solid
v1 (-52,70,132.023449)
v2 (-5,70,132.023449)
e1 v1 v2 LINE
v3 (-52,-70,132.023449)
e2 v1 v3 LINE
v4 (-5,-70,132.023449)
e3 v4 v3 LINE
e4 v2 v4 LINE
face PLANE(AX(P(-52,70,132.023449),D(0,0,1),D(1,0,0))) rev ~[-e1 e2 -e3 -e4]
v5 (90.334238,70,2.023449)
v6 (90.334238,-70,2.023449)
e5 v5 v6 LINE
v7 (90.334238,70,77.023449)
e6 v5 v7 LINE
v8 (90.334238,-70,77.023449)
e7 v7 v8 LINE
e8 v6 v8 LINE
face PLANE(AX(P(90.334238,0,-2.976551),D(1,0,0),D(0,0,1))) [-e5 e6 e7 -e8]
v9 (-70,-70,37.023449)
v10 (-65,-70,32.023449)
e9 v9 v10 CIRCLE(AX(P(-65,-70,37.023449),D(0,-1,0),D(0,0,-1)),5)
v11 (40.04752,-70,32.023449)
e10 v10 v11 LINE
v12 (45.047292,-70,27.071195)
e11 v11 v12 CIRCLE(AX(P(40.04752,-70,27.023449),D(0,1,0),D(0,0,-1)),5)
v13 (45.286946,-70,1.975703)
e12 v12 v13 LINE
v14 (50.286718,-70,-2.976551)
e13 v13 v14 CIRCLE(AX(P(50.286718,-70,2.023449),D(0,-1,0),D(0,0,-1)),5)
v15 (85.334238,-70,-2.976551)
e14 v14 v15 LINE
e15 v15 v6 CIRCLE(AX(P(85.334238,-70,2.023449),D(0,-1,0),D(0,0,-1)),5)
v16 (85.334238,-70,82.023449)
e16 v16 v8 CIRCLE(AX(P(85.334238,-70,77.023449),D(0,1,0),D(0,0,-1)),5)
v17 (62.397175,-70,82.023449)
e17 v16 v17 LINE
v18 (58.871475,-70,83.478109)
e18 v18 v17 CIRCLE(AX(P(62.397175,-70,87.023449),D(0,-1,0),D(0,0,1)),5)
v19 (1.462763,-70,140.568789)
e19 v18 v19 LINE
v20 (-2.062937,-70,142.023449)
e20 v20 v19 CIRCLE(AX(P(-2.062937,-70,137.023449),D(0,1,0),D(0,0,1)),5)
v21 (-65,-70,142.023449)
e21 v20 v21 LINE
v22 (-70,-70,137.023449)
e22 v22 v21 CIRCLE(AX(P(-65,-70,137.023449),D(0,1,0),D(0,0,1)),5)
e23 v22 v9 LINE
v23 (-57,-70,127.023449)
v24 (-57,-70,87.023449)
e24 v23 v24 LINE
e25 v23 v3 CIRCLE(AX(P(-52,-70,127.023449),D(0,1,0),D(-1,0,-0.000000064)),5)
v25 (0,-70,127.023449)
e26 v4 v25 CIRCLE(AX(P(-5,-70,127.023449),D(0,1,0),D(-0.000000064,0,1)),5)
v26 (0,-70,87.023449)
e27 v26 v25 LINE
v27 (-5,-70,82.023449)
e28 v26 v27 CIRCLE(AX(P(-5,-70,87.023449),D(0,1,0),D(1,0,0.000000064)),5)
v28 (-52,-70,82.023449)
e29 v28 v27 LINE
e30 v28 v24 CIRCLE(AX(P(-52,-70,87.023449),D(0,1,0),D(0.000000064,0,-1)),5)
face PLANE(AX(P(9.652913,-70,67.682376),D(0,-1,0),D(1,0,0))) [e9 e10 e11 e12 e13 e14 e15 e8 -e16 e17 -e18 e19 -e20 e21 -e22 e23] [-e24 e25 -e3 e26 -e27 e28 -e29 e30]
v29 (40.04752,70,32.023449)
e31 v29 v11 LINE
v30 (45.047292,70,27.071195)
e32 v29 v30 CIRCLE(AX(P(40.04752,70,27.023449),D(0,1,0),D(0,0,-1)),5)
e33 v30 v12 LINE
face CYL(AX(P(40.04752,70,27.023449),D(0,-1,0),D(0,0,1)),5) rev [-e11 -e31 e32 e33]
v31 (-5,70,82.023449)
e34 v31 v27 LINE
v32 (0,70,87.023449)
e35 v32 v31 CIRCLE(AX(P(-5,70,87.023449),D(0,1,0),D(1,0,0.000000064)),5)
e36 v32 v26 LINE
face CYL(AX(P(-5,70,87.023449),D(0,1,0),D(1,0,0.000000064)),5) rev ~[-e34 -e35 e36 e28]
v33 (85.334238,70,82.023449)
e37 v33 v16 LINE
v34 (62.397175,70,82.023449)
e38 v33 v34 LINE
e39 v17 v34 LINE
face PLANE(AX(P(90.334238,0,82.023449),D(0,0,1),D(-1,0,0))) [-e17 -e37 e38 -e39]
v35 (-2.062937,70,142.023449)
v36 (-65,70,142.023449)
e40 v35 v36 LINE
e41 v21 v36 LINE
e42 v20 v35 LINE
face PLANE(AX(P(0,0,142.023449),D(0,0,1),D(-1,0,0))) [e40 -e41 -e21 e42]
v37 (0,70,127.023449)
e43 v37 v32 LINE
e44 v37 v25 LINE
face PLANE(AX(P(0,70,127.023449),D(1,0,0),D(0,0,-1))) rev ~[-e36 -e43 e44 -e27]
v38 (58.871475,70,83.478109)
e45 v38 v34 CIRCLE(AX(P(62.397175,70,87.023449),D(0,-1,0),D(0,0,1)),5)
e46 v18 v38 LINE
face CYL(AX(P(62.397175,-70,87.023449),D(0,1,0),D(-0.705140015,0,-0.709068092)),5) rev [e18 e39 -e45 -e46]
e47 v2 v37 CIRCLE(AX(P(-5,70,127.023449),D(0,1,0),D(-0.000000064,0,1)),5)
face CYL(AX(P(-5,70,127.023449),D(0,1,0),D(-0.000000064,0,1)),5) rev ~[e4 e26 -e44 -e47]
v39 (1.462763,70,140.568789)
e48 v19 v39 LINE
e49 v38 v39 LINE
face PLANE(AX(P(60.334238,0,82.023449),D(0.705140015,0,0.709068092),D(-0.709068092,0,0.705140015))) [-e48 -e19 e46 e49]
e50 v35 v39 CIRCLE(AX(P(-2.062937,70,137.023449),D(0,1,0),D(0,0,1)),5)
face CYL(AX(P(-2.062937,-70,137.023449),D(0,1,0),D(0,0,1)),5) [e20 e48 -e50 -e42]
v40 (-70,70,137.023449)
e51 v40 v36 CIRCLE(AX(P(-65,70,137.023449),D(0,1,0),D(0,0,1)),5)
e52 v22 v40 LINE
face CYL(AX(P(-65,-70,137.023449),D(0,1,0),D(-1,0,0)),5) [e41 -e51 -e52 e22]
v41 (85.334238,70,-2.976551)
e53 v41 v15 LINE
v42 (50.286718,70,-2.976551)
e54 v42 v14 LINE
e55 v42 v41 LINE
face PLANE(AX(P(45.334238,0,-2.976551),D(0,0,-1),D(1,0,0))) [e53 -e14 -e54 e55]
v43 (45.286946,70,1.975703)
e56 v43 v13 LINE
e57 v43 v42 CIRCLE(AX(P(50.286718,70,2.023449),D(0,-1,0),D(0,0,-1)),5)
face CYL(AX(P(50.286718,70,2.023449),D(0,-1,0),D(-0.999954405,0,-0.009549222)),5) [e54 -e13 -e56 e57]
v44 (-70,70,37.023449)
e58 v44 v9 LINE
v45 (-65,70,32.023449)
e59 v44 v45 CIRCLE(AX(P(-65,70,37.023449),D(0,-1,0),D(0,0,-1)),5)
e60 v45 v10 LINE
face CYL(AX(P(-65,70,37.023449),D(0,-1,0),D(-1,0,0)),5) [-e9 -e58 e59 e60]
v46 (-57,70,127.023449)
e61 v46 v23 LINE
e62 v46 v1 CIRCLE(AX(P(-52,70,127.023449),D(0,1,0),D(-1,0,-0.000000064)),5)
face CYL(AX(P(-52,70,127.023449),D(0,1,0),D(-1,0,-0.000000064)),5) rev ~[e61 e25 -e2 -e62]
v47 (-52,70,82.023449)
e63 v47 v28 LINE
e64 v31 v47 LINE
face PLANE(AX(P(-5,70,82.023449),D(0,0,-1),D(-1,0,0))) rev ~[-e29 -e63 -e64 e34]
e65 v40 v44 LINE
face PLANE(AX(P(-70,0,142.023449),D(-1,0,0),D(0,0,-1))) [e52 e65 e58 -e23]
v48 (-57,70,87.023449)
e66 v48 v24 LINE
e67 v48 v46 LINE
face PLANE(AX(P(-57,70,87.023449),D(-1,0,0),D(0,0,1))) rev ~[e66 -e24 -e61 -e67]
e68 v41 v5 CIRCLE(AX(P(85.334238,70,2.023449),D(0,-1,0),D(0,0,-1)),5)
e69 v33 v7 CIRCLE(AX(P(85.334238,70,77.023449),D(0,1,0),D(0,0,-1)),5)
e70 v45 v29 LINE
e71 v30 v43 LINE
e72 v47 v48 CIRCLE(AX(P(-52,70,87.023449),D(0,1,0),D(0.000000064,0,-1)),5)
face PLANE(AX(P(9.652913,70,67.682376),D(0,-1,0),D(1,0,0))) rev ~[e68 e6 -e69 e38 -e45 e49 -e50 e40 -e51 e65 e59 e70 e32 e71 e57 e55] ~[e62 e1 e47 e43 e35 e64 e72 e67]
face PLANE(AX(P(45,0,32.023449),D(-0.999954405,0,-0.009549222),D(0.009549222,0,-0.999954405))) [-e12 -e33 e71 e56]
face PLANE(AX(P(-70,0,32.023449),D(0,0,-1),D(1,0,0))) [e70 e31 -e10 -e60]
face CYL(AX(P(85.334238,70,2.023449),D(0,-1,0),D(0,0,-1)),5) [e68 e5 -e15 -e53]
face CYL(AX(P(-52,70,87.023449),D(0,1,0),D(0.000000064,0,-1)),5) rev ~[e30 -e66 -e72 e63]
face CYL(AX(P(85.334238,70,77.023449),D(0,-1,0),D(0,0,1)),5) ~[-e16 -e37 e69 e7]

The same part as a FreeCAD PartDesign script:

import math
import FreeCAD as App
import Part
import Sketcher


def edges_at(feature, points):
    """Names of the edges that pass closest to the given points."""
    edges = feature.Shape.Edges
    near = lambda p: min(range(len(edges)), key=lambda i: edges[i].distToShape(Part.Vertex(*p))[0])
    return sorted({f"Edge{near(p) + 1}" for p in points})


def add_polygon(sketch, points):
    """Adds a closed chain of lines whose ends are joined by coincident constraints."""
    first, n = sketch.GeometryCount, len(points)
    for a, b in zip(points, points[1:] + points[:1]):
        sketch.addGeometry(Part.LineSegment(App.Vector(*a, 0), App.Vector(*b, 0)), False)
    for i in range(n):
        sketch.addConstraint(Sketcher.Constraint("Coincident", first + i, 2, first + (i + 1) % n, 1))

doc = App.newDocument("Part")
params = doc.addObject("Spreadsheet::Sheet", "Params")
for row, (alias, value) in enumerate([
    ("sketch1_width", "115 mm"),
    ("sketch1_width2", "45 mm"),
    ("sketch1_width3", "30 mm"),
    ("sketch1_width4", "70 mm"),
    ("sketch1_height", "110 mm"),
    ("pad1_length", "140 mm"),
    ("sketch2_radius", "5 mm"),
    ("sketch2_width", "47 mm"),
    ("sketch2_height", "40 mm"),
    ("fillet_radius", "5 mm"),
], start=1):
    params.set(f"A{row}", alias)
    params.set(f"B{row}", "=" + value)
    params.setAlias(f"B{row}", alias)

body = doc.addObject("PartDesign::Body", "Body")

# Sketch on XZ plane
sketch1 = body.newObject("Sketcher::SketchObject", "Sketch")
sketch1.AttachmentSupport = (doc.getObject("XZ_Plane"), [""])
sketch1.MapMode = "FlatFace"
add_polygon(sketch1, [(-70, 142), (-70, 32), (45, 32), (45, -3), (90, -3), (90, 82), (60, 82), (0, 142)])  # lines 0-7
sketch1.addConstraint(Sketcher.Constraint("Vertical", 0))
sketch1.addConstraint(Sketcher.Constraint("Horizontal", 1))
sketch1.addConstraint(Sketcher.Constraint("Horizontal", 3))
sketch1.addConstraint(Sketcher.Constraint("Vertical", 4))
sketch1.addConstraint(Sketcher.Constraint("Horizontal", 5))
sketch1.addConstraint(Sketcher.Constraint("Horizontal", 7))
sketch1.addConstraint(Sketcher.Constraint("PointOnObject", 6, 2, -2))
sketch1.addConstraint(Sketcher.Constraint("DistanceX", 1, 1, 1, 2, 115.0))
sketch1.addConstraint(Sketcher.Constraint("DistanceX", 3, 1, 3, 2, 45.0))
sketch1.addConstraint(Sketcher.Constraint("DistanceX", 5, 2, 5, 1, 30.0))
sketch1.addConstraint(Sketcher.Constraint("DistanceX", 7, 2, 7, 1, 70.0))
sketch1.addConstraint(Sketcher.Constraint("DistanceY", 0, 2, 0, 1, 110.0))
sketch1.addConstraint(Sketcher.Constraint("DistanceY", 4, 1, 4, 2, 85.0))
sketch1.addConstraint(Sketcher.Constraint("DistanceY", 2, 2, 1, 2, 35.0))
sketch1.addConstraint(Sketcher.Constraint("DistanceY", -1, 1, 0, 2, 32.023449))
sketch1.addConstraint(Sketcher.Constraint("DistanceX", -1, 1, 3, 2, 90.334238))
sketch1.setExpression("Constraints[15]", "Params.sketch1_width")
sketch1.setExpression("Constraints[16]", "Params.sketch1_width2")
sketch1.setExpression("Constraints[17]", "Params.sketch1_width3")
sketch1.setExpression("Constraints[18]", "Params.sketch1_width4")
sketch1.setExpression("Constraints[19]", "Params.sketch1_height")
pad1 = body.newObject("PartDesign::Pad", "Pad")
pad1.Profile = sketch1
pad1.setExpression("Length", "Params.pad1_length")
pad1.Midplane = True

# Sketch on XZ plane
sketch2 = body.newObject("Sketcher::SketchObject", "Sketch001")
sketch2.AttachmentSupport = (doc.getObject("XZ_Plane"), [""])
sketch2.MapMode = "FlatFace"
sketch2.AttachmentOffset = App.Placement(App.Vector(0, 0, -70), App.Rotation())
sketch2.addGeometry(Part.LineSegment(App.Vector(-52, 132, 0), App.Vector(-5, 132, 0)), False)
sketch2.addGeometry(Part.ArcOfCircle(Part.Circle(App.Vector(-5, 127, 0), App.Vector(0, 0, 1), 5), math.radians(0), math.radians(90)), False)
sketch2.addGeometry(Part.LineSegment(App.Vector(0, 127, 0), App.Vector(0, 87, 0)), False)
sketch2.addGeometry(Part.ArcOfCircle(Part.Circle(App.Vector(-5, 87, 0), App.Vector(0, 0, 1), 5), math.radians(-90), math.radians(0)), False)
sketch2.addGeometry(Part.LineSegment(App.Vector(-5, 82, 0), App.Vector(-52, 82, 0)), False)
sketch2.addGeometry(Part.ArcOfCircle(Part.Circle(App.Vector(-52, 87, 0), App.Vector(0, 0, 1), 5), math.radians(180), math.radians(270)), False)
sketch2.addGeometry(Part.LineSegment(App.Vector(-57, 87, 0), App.Vector(-57, 127, 0)), False)
sketch2.addGeometry(Part.ArcOfCircle(Part.Circle(App.Vector(-52, 127, 0), App.Vector(0, 0, 1), 5), math.radians(90), math.radians(180)), False)
sketch2.addConstraint(Sketcher.Constraint("Tangent", 0, 2, 1, 2))
sketch2.addConstraint(Sketcher.Constraint("Tangent", 1, 1, 2, 1))
sketch2.addConstraint(Sketcher.Constraint("Tangent", 2, 2, 3, 2))
sketch2.addConstraint(Sketcher.Constraint("Tangent", 3, 1, 4, 1))
sketch2.addConstraint(Sketcher.Constraint("Tangent", 4, 2, 5, 2))
sketch2.addConstraint(Sketcher.Constraint("Tangent", 5, 1, 6, 1))
sketch2.addConstraint(Sketcher.Constraint("Tangent", 6, 2, 7, 2))
sketch2.addConstraint(Sketcher.Constraint("Tangent", 7, 1, 0, 1))
sketch2.addConstraint(Sketcher.Constraint("Horizontal", 0))
sketch2.addConstraint(Sketcher.Constraint("Vertical", 2))
sketch2.addConstraint(Sketcher.Constraint("Horizontal", 4))
sketch2.addConstraint(Sketcher.Constraint("Vertical", 6))
sketch2.addConstraint(Sketcher.Constraint("Equal", 1, 3))
sketch2.addConstraint(Sketcher.Constraint("Equal", 3, 5))
sketch2.addConstraint(Sketcher.Constraint("Equal", 5, 7))
sketch2.addConstraint(Sketcher.Constraint("PointOnObject", 1, 1, -2))
sketch2.addConstraint(Sketcher.Constraint("Radius", 1, 5.0))
sketch2.addConstraint(Sketcher.Constraint("DistanceX", 0, 1, 0, 2, 47.0))
sketch2.addConstraint(Sketcher.Constraint("DistanceY", 2, 2, 2, 1, 40.0))
sketch2.addConstraint(Sketcher.Constraint("DistanceY", -1, 1, 1, 3, 127.023449))
sketch2.setExpression("Constraints[16]", "Params.sketch2_radius")
sketch2.setExpression("Constraints[17]", "Params.sketch2_width")
sketch2.setExpression("Constraints[18]", "Params.sketch2_height")
pocket1 = body.newObject("PartDesign::Pocket", "Pocket")
pocket1.Profile = sketch2
pocket1.Type = "ThroughAll"
pocket1.Reversed = True
doc.recompute()

fillet = body.newObject("PartDesign::Fillet", "Fillet")
fillet.Base = (pocket1, edges_at(pocket1, [
    (0, 0, 142.023),
    (60.334, 0, 82.023),
    (90.334, 0, 82.023),
    (90.334, 0, -2.977),
    (45.334, 0, -2.977),
    (45, 0, 32.023),
    (-70, 0, 32.023),
    (-70, 0, 142.023),
]))
fillet.setExpression("Radius", "Params.fillet_radius")

doc.recompute()
